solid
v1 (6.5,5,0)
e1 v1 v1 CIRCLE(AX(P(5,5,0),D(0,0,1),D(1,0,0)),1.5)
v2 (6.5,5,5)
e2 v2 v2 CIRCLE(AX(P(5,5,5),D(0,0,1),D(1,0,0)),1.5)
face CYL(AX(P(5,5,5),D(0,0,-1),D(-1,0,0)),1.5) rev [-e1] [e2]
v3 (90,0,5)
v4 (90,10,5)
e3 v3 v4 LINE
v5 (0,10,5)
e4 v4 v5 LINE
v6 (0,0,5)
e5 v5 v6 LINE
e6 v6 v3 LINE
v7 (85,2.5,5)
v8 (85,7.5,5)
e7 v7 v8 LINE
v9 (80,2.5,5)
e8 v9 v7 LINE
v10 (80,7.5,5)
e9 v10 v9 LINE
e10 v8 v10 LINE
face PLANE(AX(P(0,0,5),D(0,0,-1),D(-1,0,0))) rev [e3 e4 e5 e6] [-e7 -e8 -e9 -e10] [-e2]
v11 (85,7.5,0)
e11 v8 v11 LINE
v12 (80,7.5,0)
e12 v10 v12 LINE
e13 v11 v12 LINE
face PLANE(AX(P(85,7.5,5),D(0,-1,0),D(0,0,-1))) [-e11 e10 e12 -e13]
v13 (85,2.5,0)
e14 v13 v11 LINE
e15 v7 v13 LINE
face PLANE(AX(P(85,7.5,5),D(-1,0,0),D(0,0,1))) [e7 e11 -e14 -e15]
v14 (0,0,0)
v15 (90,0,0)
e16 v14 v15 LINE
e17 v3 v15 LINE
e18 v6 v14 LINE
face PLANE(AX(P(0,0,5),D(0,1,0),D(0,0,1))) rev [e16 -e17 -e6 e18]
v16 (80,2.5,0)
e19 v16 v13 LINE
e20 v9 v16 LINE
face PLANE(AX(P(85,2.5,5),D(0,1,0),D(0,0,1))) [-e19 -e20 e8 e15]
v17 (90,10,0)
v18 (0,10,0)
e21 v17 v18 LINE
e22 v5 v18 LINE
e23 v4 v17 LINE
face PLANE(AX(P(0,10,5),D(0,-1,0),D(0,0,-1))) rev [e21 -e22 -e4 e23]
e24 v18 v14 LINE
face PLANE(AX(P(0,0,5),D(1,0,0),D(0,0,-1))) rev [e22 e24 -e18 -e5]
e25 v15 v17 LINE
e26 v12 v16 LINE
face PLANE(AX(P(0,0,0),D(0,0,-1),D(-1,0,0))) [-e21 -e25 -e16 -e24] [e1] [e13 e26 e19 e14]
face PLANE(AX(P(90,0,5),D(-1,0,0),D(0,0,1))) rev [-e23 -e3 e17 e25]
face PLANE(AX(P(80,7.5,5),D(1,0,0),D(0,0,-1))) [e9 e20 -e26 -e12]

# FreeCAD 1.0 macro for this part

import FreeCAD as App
import Part
import Sketcher
Q = App.Units.Quantity


def add_polygon(sketch, points):
    """Adds a closed chain of lines whose ends are joined by coincident constraints."""
    first, n = sketch.GeometryCount, len(points)
    for a, b in zip(points, points[1:] + points[:1]):
        sketch.addGeometry(Part.LineSegment(App.Vector(*a, 0), App.Vector(*b, 0)), False)
    for i in range(n):
        sketch.addConstraint(Sketcher.Constraint("Coincident", first + i, 2, first + (i + 1) % n, 1))

doc = App.newDocument("Part")
params = doc.addObject("Spreadsheet::Sheet", "Params")
for row, (alias, value) in enumerate([
    ("sketch1_diameter", "3 mm"),
    ("sketch1_width", "90 mm"),
    ("sketch1_width2", "5 mm"),
    ("sketch1_height", "10 mm"),
    ("pad1_length", "5 mm"),
], start=1):
    params.set(f"A{row}", alias)
    params.set(f"B{row}", "=" + value)
    params.setAlias(f"B{row}", alias)

body = doc.addObject("PartDesign::Body", "Body")

# Sketch on XY plane
sketch1 = body.newObject("Sketcher::SketchObject", "Sketch")
sketch1.AttachmentSupport = (doc.getObject("XY_Plane"), [""])
sketch1.MapMode = "FlatFace"
add_polygon(sketch1, [(0, 10), (0, 0), (90, 0), (90, 10)])  # lines 0-3
sketch1.addGeometry(Part.Circle(App.Vector(5, 5, 0), App.Vector(0, 0, 1), 1.5), False)  # 4
add_polygon(sketch1, [(85, 2.5), (80, 2.5), (80, 7.5), (85, 7.5)])  # lines 5-8
sketch1.addConstraint(Sketcher.Constraint("Vertical", 0))
sketch1.addConstraint(Sketcher.Constraint("Horizontal", 1))
sketch1.addConstraint(Sketcher.Constraint("Vertical", 2))
sketch1.addConstraint(Sketcher.Constraint("Horizontal", 3))
sketch1.addConstraint(Sketcher.Constraint("Horizontal", 5))
sketch1.addConstraint(Sketcher.Constraint("Vertical", 6))
sketch1.addConstraint(Sketcher.Constraint("Horizontal", 7))
sketch1.addConstraint(Sketcher.Constraint("Vertical", 8))
sketch1.addConstraint(Sketcher.Constraint("Coincident", 0, 2, -1, 1))
sketch1.addConstraint(Sketcher.Constraint("Equal", 7, 6))
sketch1.addConstraint(Sketcher.Constraint("Diameter", 4, Q("3 mm")))
sketch1.addConstraint(Sketcher.Constraint("DistanceX", 1, 1, 1, 2, Q("90 mm")))
sketch1.addConstraint(Sketcher.Constraint("DistanceX", 5, 2, 5, 1, Q("5 mm")))
sketch1.addConstraint(Sketcher.Constraint("DistanceY", 0, 2, 0, 1, Q("10 mm")))
sketch1.addConstraint(Sketcher.Constraint("DistanceX", -1, 1, 4, 3, Q("5 mm")))
sketch1.addConstraint(Sketcher.Constraint("DistanceY", -1, 1, 4, 3, Q("5 mm")))
sketch1.addConstraint(Sketcher.Constraint("DistanceX", -1, 1, 5, 2, Q("80 mm")))
sketch1.addConstraint(Sketcher.Constraint("DistanceY", -1, 1, 5, 2, Q("2.5 mm")))
sketch1.setExpression("Constraints[18]", "Params.sketch1_diameter")
sketch1.setExpression("Constraints[19]", "Params.sketch1_width")
sketch1.setExpression("Constraints[20]", "Params.sketch1_width2")
sketch1.setExpression("Constraints[21]", "Params.sketch1_height")
pad1 = body.newObject("PartDesign::Pad", "Pad")
pad1.Profile = sketch1
pad1.setExpression("Length", "Params.pad1_length")

doc.recompute()
